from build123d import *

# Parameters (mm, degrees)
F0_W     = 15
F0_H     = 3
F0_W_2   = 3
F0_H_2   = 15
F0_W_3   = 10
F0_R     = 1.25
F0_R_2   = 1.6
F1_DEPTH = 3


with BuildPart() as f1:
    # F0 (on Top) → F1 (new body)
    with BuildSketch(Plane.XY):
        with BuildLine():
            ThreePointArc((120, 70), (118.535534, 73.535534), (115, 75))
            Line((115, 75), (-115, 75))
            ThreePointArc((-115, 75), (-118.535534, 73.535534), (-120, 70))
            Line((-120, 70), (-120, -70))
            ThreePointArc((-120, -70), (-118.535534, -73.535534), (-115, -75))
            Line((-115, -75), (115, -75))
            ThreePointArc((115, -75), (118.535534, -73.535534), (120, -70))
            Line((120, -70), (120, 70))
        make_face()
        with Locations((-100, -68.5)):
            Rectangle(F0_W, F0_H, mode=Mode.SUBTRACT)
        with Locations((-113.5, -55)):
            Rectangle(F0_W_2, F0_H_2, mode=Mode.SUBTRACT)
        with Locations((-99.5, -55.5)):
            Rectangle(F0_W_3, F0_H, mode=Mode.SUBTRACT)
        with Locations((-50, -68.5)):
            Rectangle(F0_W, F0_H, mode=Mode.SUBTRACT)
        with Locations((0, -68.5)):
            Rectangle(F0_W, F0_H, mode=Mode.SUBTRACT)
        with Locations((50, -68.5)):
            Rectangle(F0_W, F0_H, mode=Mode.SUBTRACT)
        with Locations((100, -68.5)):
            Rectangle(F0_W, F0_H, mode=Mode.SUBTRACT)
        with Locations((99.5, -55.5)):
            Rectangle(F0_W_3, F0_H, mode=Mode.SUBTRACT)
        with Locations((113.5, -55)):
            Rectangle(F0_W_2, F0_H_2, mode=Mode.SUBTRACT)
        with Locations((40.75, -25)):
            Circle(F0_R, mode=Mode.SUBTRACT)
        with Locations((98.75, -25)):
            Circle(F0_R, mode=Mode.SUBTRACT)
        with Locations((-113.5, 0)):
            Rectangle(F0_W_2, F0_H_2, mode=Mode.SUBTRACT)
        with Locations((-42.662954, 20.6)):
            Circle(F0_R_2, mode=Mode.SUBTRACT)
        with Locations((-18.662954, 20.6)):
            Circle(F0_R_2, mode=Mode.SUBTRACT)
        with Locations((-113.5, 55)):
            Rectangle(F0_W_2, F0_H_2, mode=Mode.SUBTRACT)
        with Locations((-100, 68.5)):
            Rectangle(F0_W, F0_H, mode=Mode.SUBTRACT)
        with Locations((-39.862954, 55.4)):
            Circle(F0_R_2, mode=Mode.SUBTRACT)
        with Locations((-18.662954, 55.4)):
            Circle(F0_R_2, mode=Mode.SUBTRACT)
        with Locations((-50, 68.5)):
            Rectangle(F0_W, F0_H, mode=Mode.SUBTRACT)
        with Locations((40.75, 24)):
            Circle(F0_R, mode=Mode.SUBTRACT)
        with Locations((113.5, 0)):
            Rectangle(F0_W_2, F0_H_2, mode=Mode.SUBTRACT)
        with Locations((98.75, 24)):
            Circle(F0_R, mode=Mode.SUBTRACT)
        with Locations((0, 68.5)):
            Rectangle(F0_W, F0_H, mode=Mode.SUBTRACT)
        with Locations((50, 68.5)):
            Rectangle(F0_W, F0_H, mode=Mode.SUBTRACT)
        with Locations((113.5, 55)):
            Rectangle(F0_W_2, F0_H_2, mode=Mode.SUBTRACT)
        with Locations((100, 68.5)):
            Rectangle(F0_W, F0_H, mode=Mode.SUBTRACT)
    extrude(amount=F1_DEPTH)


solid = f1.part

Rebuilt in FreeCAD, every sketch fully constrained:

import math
import FreeCAD as App
import Part
import Sketcher

V = App.Vector
Q = App.Units.Quantity


def add_polygon(sketch, points):
    """Adds a closed chain of lines whose ends are joined by coincident constraints."""
    first, n = sketch.GeometryCount, len(points)
    for a, b in zip(points, points[1:] + points[:1]):
        sketch.addGeometry(Part.LineSegment(App.Vector(*a, 0), App.Vector(*b, 0)), False)
    for i in range(n):
        sketch.addConstraint(Sketcher.Constraint("Coincident", first + i, 2, first + (i + 1) % n, 1))

doc = App.newDocument("Part")
body = doc.addObject("PartDesign::Body", "Body")

# Sketch on XY plane
sketch1 = body.newObject("Sketcher::SketchObject", "Sketch")
sketch1.AttachmentSupport = (doc.getObject("XY_Plane"), [""])
sketch1.MapMode = "FlatFace"
sketch1.addGeometry(Part.ArcOfCircle(Part.Circle(V(115, 70, 0), V(0, 0, 1), 5), math.radians(0), math.radians(90)), False)  # 0
sketch1.addGeometry(Part.LineSegment(V(115, 75, 0), V(-115, 75, 0)), False)  # 1
sketch1.addGeometry(Part.ArcOfCircle(Part.Circle(V(-115, 70, 0), V(0, 0, 1), 5), math.radians(90), math.radians(180)), False)  # 2
sketch1.addGeometry(Part.LineSegment(V(-120, 70, 0), V(-120, -70, 0)), False)  # 3
sketch1.addGeometry(Part.ArcOfCircle(Part.Circle(V(-115, -70, 0), V(0, 0, 1), 5), math.radians(180), math.radians(270)), False)  # 4
sketch1.addGeometry(Part.LineSegment(V(-115, -75, 0), V(115, -75, 0)), False)  # 5
sketch1.addGeometry(Part.ArcOfCircle(Part.Circle(V(115, -70, 0), V(0, 0, 1), 5), math.radians(-90), math.radians(0)), False)  # 6
sketch1.addGeometry(Part.LineSegment(V(120, -70, 0), V(120, 70, 0)), False)  # 7
add_polygon(sketch1, [(-92.5, -70), (-107.5, -70), (-107.5, -67), (-92.5, -67)])  # lines 8-11
add_polygon(sketch1, [(-112, -62.5), (-115, -62.5), (-115, -47.5), (-112, -47.5)])  # lines 12-15
add_polygon(sketch1, [(-94.5, -57), (-104.5, -57), (-104.5, -54), (-94.5, -54)])  # lines 16-19
add_polygon(sketch1, [(-42.5, -70), (-57.5, -70), (-57.5, -67), (-42.5, -67)])  # lines 20-23
add_polygon(sketch1, [(7.5, -70), (-7.5, -70), (-7.5, -67), (7.5, -67)])  # lines 24-27
add_polygon(sketch1, [(57.5, -70), (42.5, -70), (42.5, -67), (57.5, -67)])  # lines 28-31
add_polygon(sketch1, [(107.5, -70), (92.5, -70), (92.5, -67), (107.5, -67)])  # lines 32-35
add_polygon(sketch1, [(104.5, -57), (94.5, -57), (94.5, -54), (104.5, -54)])  # lines 36-39
add_polygon(sketch1, [(115, -62.5), (112, -62.5), (112, -47.5), (115, -47.5)])  # lines 40-43
sketch1.addGeometry(Part.Circle(V(40.8, -25, 0), V(0, 0, 1), 1.2), False)  # 44
sketch1.addGeometry(Part.Circle(V(98.8, -25, 0), V(0, 0, 1), 1.2), False)  # 45
add_polygon(sketch1, [(-112, -7.5), (-115, -7.5), (-115, 7.5), (-112, 7.5)])  # lines 46-49
sketch1.addGeometry(Part.Circle(V(-42.7, 20.6, 0), V(0, 0, 1), 1.6), False)  # 50
sketch1.addGeometry(Part.Circle(V(-18.7, 20.6, 0), V(0, 0, 1), 1.6), False)  # 51
add_polygon(sketch1, [(-112, 47.5), (-115, 47.5), (-115, 62.5), (-112, 62.5)])  # lines 52-55
add_polygon(sketch1, [(-92.5, 67), (-107.5, 67), (-107.5, 70), (-92.5, 70)])  # lines 56-59
sketch1.addGeometry(Part.Circle(V(-39.9, 55.4, 0), V(0, 0, 1), 1.6), False)  # 60
add_polygon(sketch1, [(-42.5, 67), (-57.5, 67), (-57.5, 70), (-42.5, 70)])  # lines 61-64
sketch1.addGeometry(Part.Circle(V(-18.7, 55.4, 0), V(0, 0, 1), 1.6), False)  # 65
sketch1.addGeometry(Part.Circle(V(40.8, 24, 0), V(0, 0, 1), 1.2), False)  # 66
add_polygon(sketch1, [(115, -7.5), (112, -7.5), (112, 7.5), (115, 7.5)])  # lines 67-70
sketch1.addGeometry(Part.Circle(V(98.8, 24, 0), V(0, 0, 1), 1.2), False)  # 71
add_polygon(sketch1, [(7.5, 67), (-7.5, 67), (-7.5, 70), (7.5, 70)])  # lines 72-75
add_polygon(sketch1, [(57.5, 67), (42.5, 67), (42.5, 70), (57.5, 70)])  # lines 76-79
add_polygon(sketch1, [(115, 47.5), (112, 47.5), (112, 62.5), (115, 62.5)])  # lines 80-83
add_polygon(sketch1, [(107.5, 67), (92.5, 67), (92.5, 70), (107.5, 70)])  # lines 84-87
sketch1.addConstraint(Sketcher.Constraint("Tangent", 0, 2, 1, 1))
sketch1.addConstraint(Sketcher.Constraint("Tangent", 1, 2, 2, 1))
sketch1.addConstraint(Sketcher.Constraint("Tangent", 2, 2, 3, 1))
sketch1.addConstraint(Sketcher.Constraint("Tangent", 3, 2, 4, 1))
sketch1.addConstraint(Sketcher.Constraint("Tangent", 4, 2, 5, 1))
sketch1.addConstraint(Sketcher.Constraint("Tangent", 5, 2, 6, 1))
sketch1.addConstraint(Sketcher.Constraint("Tangent", 6, 2, 7, 1))
sketch1.addConstraint(Sketcher.Constraint("Tangent", 7, 2, 0, 1))
sketch1.addConstraint(Sketcher.Constraint("Horizontal", 1))
sketch1.addConstraint(Sketcher.Constraint("Vertical", 3))
sketch1.addConstraint(Sketcher.Constraint("Horizontal", 5))
sketch1.addConstraint(Sketcher.Constraint("Vertical", 7))
sketch1.addConstraint(Sketcher.Constraint("Horizontal", 8))
sketch1.addConstraint(Sketcher.Constraint("Vertical", 9))
sketch1.addConstraint(Sketcher.Constraint("Horizontal", 10))
sketch1.addConstraint(Sketcher.Constraint("Vertical", 11))
sketch1.addConstraint(Sketcher.Constraint("Horizontal", 12))
sketch1.addConstraint(Sketcher.Constraint("Vertical", 13))
sketch1.addConstraint(Sketcher.Constraint("Horizontal", 14))
sketch1.addConstraint(Sketcher.Constraint("Vertical", 15))
sketch1.addConstraint(Sketcher.Constraint("Horizontal", 16))
sketch1.addConstraint(Sketcher.Constraint("Vertical", 17))
sketch1.addConstraint(Sketcher.Constraint("Horizontal", 18))
sketch1.addConstraint(Sketcher.Constraint("Vertical", 19))
sketch1.addConstraint(Sketcher.Constraint("Horizontal", 20))
sketch1.addConstraint(Sketcher.Constraint("Vertical", 21))
sketch1.addConstraint(Sketcher.Constraint("Horizontal", 22))
sketch1.addConstraint(Sketcher.Constraint("Vertical", 23))
sketch1.addConstraint(Sketcher.Constraint("Horizontal", 24))
sketch1.addConstraint(Sketcher.Constraint("Vertical", 25))
sketch1.addConstraint(Sketcher.Constraint("Horizontal", 26))
sketch1.addConstraint(Sketcher.Constraint("Vertical", 27))
sketch1.addConstraint(Sketcher.Constraint("Horizontal", 28))
sketch1.addConstraint(Sketcher.Constraint("Vertical", 29))
sketch1.addConstraint(Sketcher.Constraint("Horizontal", 30))
sketch1.addConstraint(Sketcher.Constraint("Vertical", 31))
sketch1.addConstraint(Sketcher.Constraint("Horizontal", 32))
sketch1.addConstraint(Sketcher.Constraint("Vertical", 33))
sketch1.addConstraint(Sketcher.Constraint("Horizontal", 34))
sketch1.addConstraint(Sketcher.Constraint("Vertical", 35))
sketch1.addConstraint(Sketcher.Constraint("Horizontal", 36))
sketch1.addConstraint(Sketcher.Constraint("Vertical", 37))
sketch1.addConstraint(Sketcher.Constraint("Horizontal", 38))
sketch1.addConstraint(Sketcher.Constraint("Vertical", 39))
sketch1.addConstraint(Sketcher.Constraint("Horizontal", 40))
sketch1.addConstraint(Sketcher.Constraint("Vertical", 41))
sketch1.addConstraint(Sketcher.Constraint("Horizontal", 42))
sketch1.addConstraint(Sketcher.Constraint("Vertical", 43))
sketch1.addConstraint(Sketcher.Constraint("Horizontal", 46))
sketch1.addConstraint(Sketcher.Constraint("Vertical", 47))
sketch1.addConstraint(Sketcher.Constraint("Horizontal", 48))
sketch1.addConstraint(Sketcher.Constraint("Vertical", 49))
sketch1.addConstraint(Sketcher.Constraint("Horizontal", 52))
sketch1.addConstraint(Sketcher.Constraint("Vertical", 53))
sketch1.addConstraint(Sketcher.Constraint("Horizontal", 54))
sketch1.addConstraint(Sketcher.Constraint("Vertical", 55))
sketch1.addConstraint(Sketcher.Constraint("Horizontal", 56))
sketch1.addConstraint(Sketcher.Constraint("Vertical", 57))
sketch1.addConstraint(Sketcher.Constraint("Horizontal", 58))
sketch1.addConstraint(Sketcher.Constraint("Vertical", 59))
sketch1.addConstraint(Sketcher.Constraint("Horizontal", 61))
sketch1.addConstraint(Sketcher.Constraint("Vertical", 62))
sketch1.addConstraint(Sketcher.Constraint("Horizontal", 63))
sketch1.addConstraint(Sketcher.Constraint("Vertical", 64))
sketch1.addConstraint(Sketcher.Constraint("Horizontal", 67))
sketch1.addConstraint(Sketcher.Constraint("Vertical", 68))
sketch1.addConstraint(Sketcher.Constraint("Horizontal", 69))
sketch1.addConstraint(Sketcher.Constraint("Vertical", 70))
sketch1.addConstraint(Sketcher.Constraint("Horizontal", 72))
sketch1.addConstraint(Sketcher.Constraint("Vertical", 73))
sketch1.addConstraint(Sketcher.Constraint("Horizontal", 74))
sketch1.addConstraint(Sketcher.Constraint("Vertical", 75))
sketch1.addConstraint(Sketcher.Constraint("Horizontal", 76))
sketch1.addConstraint(Sketcher.Constraint("Vertical", 77))
sketch1.addConstraint(Sketcher.Constraint("Horizontal", 78))
sketch1.addConstraint(Sketcher.Constraint("Vertical", 79))
sketch1.addConstraint(Sketcher.Constraint("Horizontal", 80))
sketch1.addConstraint(Sketcher.Constraint("Vertical", 81))
sketch1.addConstraint(Sketcher.Constraint("Horizontal", 82))
sketch1.addConstraint(Sketcher.Constraint("Vertical", 83))
sketch1.addConstraint(Sketcher.Constraint("Horizontal", 84))
sketch1.addConstraint(Sketcher.Constraint("Vertical", 85))
sketch1.addConstraint(Sketcher.Constraint("Horizontal", 86))
sketch1.addConstraint(Sketcher.Constraint("Vertical", 87))
sketch1.addConstraint(Sketcher.Constraint("Equal", 0, 2))
sketch1.addConstraint(Sketcher.Constraint("Equal", 2, 4))
sketch1.addConstraint(Sketcher.Constraint("Equal", 4, 6))
sketch1.addConstraint(Sketcher.Constraint("Equal", 44, 45))
sketch1.addConstraint(Sketcher.Constraint("Equal", 50, 51))
sketch1.addConstraint(Sketcher.Constraint("Equal", 51, 60))
sketch1.addConstraint(Sketcher.Constraint("Equal", 60, 65))
sketch1.addConstraint(Sketcher.Constraint("Equal", 45, 66))
sketch1.addConstraint(Sketcher.Constraint("Equal", 66, 71))
sketch1.addConstraint(Sketcher.Constraint("Symmetric", 0, 3, 4, 3, -1, 1))
sketch1.addConstraint(Sketcher.Constraint("Symmetric", 42, 2, 52, 2, -1, 1))
sketch1.addConstraint(Sketcher.Constraint("Symmetric", 40, 2, 54, 2, -1, 1))
sketch1.addConstraint(Sketcher.Constraint("Symmetric", 34, 2, 56, 2, -1, 1))
sketch1.addConstraint(Sketcher.Constraint("Symmetric", 32, 2, 58, 2, -1, 1))
sketch1.addConstraint(Sketcher.Constraint("Symmetric", 30, 2, 61, 2, -1, 1))
sketch1.addConstraint(Sketcher.Constraint("Symmetric", 28, 2, 63, 2, -1, 1))
sketch1.addConstraint(Sketcher.Constraint("Symmetric", 48, 2, 67, 2, -1, 1))
sketch1.addConstraint(Sketcher.Constraint("Symmetric", 46, 2, 69, 2, -1, 1))
sketch1.addConstraint(Sketcher.Constraint("Symmetric", 26, 2, 72, 2, -1, 1))
sketch1.addConstraint(Sketcher.Constraint("Symmetric", 24, 2, 74, 2, -1, 1))
sketch1.addConstraint(Sketcher.Constraint("Symmetric", 22, 2, 76, 2, -1, 1))
sketch1.addConstraint(Sketcher.Constraint("Symmetric", 20, 2, 78, 2, -1, 1))
sketch1.addConstraint(Sketcher.Constraint("Symmetric", 14, 2, 80, 2, -1, 1))
sketch1.addConstraint(Sketcher.Constraint("Symmetric", 12, 2, 82, 2, -1, 1))
sketch1.addConstraint(Sketcher.Constraint("Symmetric", 10, 2, 84, 2, -1, 1))
sketch1.addConstraint(Sketcher.Constraint("Symmetric", 8, 2, 86, 2, -1, 1))
sketch1.addConstraint(Sketcher.Constraint("Symmetric", 23, 2, 28, 2, -2))
sketch1.addConstraint(Sketcher.Constraint("Symmetric", 21, 2, 30, 2, -2))
sketch1.addConstraint(Sketcher.Constraint("Symmetric", 11, 2, 32, 2, -2))
sketch1.addConstraint(Sketcher.Constraint("Symmetric", 9, 2, 34, 2, -2))
sketch1.addConstraint(Sketcher.Constraint("Symmetric", 19, 2, 36, 2, -2))
sketch1.addConstraint(Sketcher.Constraint("Symmetric", 17, 2, 38, 2, -2))
sketch1.addConstraint(Sketcher.Constraint("Symmetric", 15, 2, 40, 2, -2))
sketch1.addConstraint(Sketcher.Constraint("Symmetric", 13, 2, 42, 2, -2))
sketch1.addConstraint(Sketcher.Constraint("Horizontal", 44, 3, 45, 3))
sketch1.addConstraint(Sketcher.Constraint("Horizontal", 50, 3, 51, 3))
sketch1.addConstraint(Sketcher.Constraint("Horizontal", 60, 3, 65, 3))
sketch1.addConstraint(Sketcher.Constraint("Horizontal", 66, 3, 71, 3))
sketch1.addConstraint(Sketcher.Constraint("Horizontal", 6, 2, 8, 2))
sketch1.addConstraint(Sketcher.Constraint("Horizontal", 11, 2, 20, 2))
sketch1.addConstraint(Sketcher.Constraint("Horizontal", 10, 2, 21, 2))
sketch1.addConstraint(Sketcher.Constraint("Horizontal", 23, 2, 24, 2))
sketch1.addConstraint(Sketcher.Constraint("Horizontal", 22, 2, 25, 2))
sketch1.addConstraint(Sketcher.Constraint("Horizontal", 49, 2, 67, 2))
sketch1.addConstraint(Sketcher.Constraint("Vertical", 51, 3, 65, 3))
sketch1.addConstraint(Sketcher.Constraint("Vertical", 44, 3, 66, 3))
sketch1.addConstraint(Sketcher.Constraint("Vertical", 45, 3, 71, 3))
sketch1.addConstraint(Sketcher.Constraint("Vertical", 4, 2, 12, 2))
sketch1.addConstraint(Sketcher.Constraint("Vertical", 13, 2, 46, 2))
sketch1.addConstraint(Sketcher.Constraint("Vertical", 15, 2, 48, 2))
sketch1.addConstraint(Sketcher.Constraint("Vertical", 25, 2, 72, 2))
sketch1.addConstraint(Sketcher.Constraint("Equal", 10, 20))
sketch1.addConstraint(Sketcher.Constraint("Equal", 22, 24))
sketch1.addConstraint(Sketcher.Constraint("Equal", 82, 9))
sketch1.addConstraint(Sketcher.Constraint("Equal", 86, 13))
sketch1.addConstraint(Sketcher.Constraint("Equal", 11, 17))
sketch1.addConstraint(Sketcher.Constraint("Equal", 43, 47))
sketch1.addConstraint(Sketcher.Constraint("Radius", 0, Q("5 mm")))
sketch1.addConstraint(Sketcher.Constraint("Diameter", 44, Q("2.5 mm")))
sketch1.addConstraint(Sketcher.Constraint("Diameter", 50, Q("3.2 mm")))
sketch1.addConstraint(Sketcher.Constraint("DistanceX", 1, 2, 1, 1, Q("230 mm")))
sketch1.addConstraint(Sketcher.Constraint("DistanceX", 8, 2, 8, 1, Q("15 mm")))
sketch1.addConstraint(Sketcher.Constraint("DistanceX", 12, 2, 12, 1, Q("3 mm")))
sketch1.addConstraint(Sketcher.Constraint("DistanceX", 16, 2, 16, 1, Q("10 mm")))
sketch1.addConstraint(Sketcher.Constraint("DistanceY", 3, 2, 3, 1, Q("140 mm")))
sketch1.addConstraint(Sketcher.Constraint("DistanceY", 44, 3, -1, 1, Q("25 mm")))
sketch1.addConstraint(Sketcher.Constraint("DistanceY", -1, 1, 66, 3, Q("24 mm")))
sketch1.addConstraint(Sketcher.Constraint("DistanceY", 16, 2, -1, 1, Q("57 mm")))
sketch1.addConstraint(Sketcher.Constraint("DistanceY", -1, 1, 50, 3, Q("20.6 mm")))
sketch1.addConstraint(Sketcher.Constraint("DistanceY", -1, 1, 60, 3, Q("55.4 mm")))
sketch1.addConstraint(Sketcher.Constraint("DistanceX", 8, 2, -1, 1, Q("107.5 mm")))
sketch1.addConstraint(Sketcher.Constraint("DistanceY", 12, 2, -1, 1, Q("62.5 mm")))
sketch1.addConstraint(Sketcher.Constraint("DistanceX", 16, 2, -1, 1, Q("104.5 mm")))
sketch1.addConstraint(Sketcher.Constraint("DistanceX", 20, 2, -1, 1, Q("57.5 mm")))
sketch1.addConstraint(Sketcher.Constraint("DistanceX", -1, 1, 44, 3, Q("40.75 mm")))
sketch1.addConstraint(Sketcher.Constraint("DistanceX", -1, 1, 45, 3, Q("98.75 mm")))
sketch1.addConstraint(Sketcher.Constraint("DistanceX", 50, 3, -1, 1, Q("42.662954 mm")))
sketch1.addConstraint(Sketcher.Constraint("DistanceX", 51, 3, -1, 1, Q("18.662954 mm")))
sketch1.addConstraint(Sketcher.Constraint("DistanceX", 60, 3, -1, 1, Q("39.862954 mm")))
pad1 = body.newObject("PartDesign::Pad", "Pad")
pad1.Profile = sketch1
pad1.Length = 3

doc.recompute()
